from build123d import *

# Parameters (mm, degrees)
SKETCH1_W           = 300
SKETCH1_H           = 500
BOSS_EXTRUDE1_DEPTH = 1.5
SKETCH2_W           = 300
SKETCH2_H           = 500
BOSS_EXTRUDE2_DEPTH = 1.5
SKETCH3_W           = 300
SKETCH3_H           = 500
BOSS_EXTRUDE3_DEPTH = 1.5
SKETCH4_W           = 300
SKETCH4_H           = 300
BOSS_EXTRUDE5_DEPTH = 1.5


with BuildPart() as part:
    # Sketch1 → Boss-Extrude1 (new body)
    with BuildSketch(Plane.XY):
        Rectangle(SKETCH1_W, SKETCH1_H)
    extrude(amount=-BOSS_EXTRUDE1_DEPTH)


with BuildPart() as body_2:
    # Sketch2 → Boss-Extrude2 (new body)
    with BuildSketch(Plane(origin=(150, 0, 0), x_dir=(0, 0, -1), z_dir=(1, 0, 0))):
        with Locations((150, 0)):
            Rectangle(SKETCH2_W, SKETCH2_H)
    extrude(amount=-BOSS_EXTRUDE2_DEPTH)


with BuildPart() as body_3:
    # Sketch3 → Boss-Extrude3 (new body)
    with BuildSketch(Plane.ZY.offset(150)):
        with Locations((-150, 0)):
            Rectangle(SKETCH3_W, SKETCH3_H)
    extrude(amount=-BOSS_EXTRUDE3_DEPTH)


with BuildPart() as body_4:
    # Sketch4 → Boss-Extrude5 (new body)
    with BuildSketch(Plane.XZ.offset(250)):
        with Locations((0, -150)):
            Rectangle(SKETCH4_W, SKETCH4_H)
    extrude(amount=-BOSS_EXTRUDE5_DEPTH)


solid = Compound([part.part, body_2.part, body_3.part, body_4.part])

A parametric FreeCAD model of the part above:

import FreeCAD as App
import Part
import Sketcher

V = App.Vector
Q = App.Units.Quantity


def add_polygon(sketch, points):
    """Adds a closed chain of lines whose ends are joined by coincident constraints."""
    first, n = sketch.GeometryCount, len(points)
    for a, b in zip(points, points[1:] + points[:1]):
        sketch.addGeometry(Part.LineSegment(App.Vector(*a, 0), App.Vector(*b, 0)), False)
    for i in range(n):
        sketch.addConstraint(Sketcher.Constraint("Coincident", first + i, 2, first + (i + 1) % n, 1))

doc = App.newDocument("Part")
body = doc.addObject("PartDesign::Body", "Body")

# Sketch on XY plane
sketch1 = body.newObject("Sketcher::SketchObject", "Sketch")
sketch1.AttachmentSupport = (doc.getObject("XY_Plane"), [""])
sketch1.MapMode = "FlatFace"
add_polygon(sketch1, [(-150, 250), (-150, -250), (150, -250), (150, 250)])  # lines 0-3
sketch1.addConstraint(Sketcher.Constraint("Vertical", 0))
sketch1.addConstraint(Sketcher.Constraint("Horizontal", 1))
sketch1.addConstraint(Sketcher.Constraint("Vertical", 2))
sketch1.addConstraint(Sketcher.Constraint("Horizontal", 3))
sketch1.addConstraint(Sketcher.Constraint("Symmetric", 0, 2, 2, 2, -1, 1))
sketch1.addConstraint(Sketcher.Constraint("DistanceX", 1, 1, 1, 2, Q("300 mm")))
sketch1.addConstraint(Sketcher.Constraint("DistanceY", 0, 2, 0, 1, Q("500 mm")))
pad1 = body.newObject("PartDesign::Pad", "Pad")
pad1.Profile = sketch1
pad1.Length = 1.5
pad1.Reversed = True
body2 = doc.addObject("PartDesign::Body", "Body001")

# Sketch on YZ plane
sketch2 = body2.newObject("Sketcher::SketchObject", "Sketch001")
sketch2.AttachmentSupport = (doc.getObject("YZ_Plane001"), [""])
sketch2.MapMode = "FlatFace"
sketch2.AttachmentOffset = App.Placement(V(0, 0, 150), App.Rotation())
add_polygon(sketch2, [(250, 0), (-250, 0), (-250, -300), (250, -300)])  # lines 0-3
sketch2.addConstraint(Sketcher.Constraint("Horizontal", 0))
sketch2.addConstraint(Sketcher.Constraint("Vertical", 1))
sketch2.addConstraint(Sketcher.Constraint("Horizontal", 2))
sketch2.addConstraint(Sketcher.Constraint("Vertical", 3))
sketch2.addConstraint(Sketcher.Constraint("Symmetric", 0, 2, 3, 2, -1, 1))
sketch2.addConstraint(Sketcher.Constraint("DistanceX", 0, 2, 0, 1, Q("500 mm")))
sketch2.addConstraint(Sketcher.Constraint("DistanceY", 1, 2, 1, 1, Q("300 mm")))
pad2 = body2.newObject("PartDesign::Pad", "Pad001")
pad2.Profile = sketch2
pad2.Length = 1.5
pad2.Reversed = True
body3 = doc.addObject("PartDesign::Body", "Body002")

# Sketch on YZ plane
sketch3 = body3.newObject("Sketcher::SketchObject", "Sketch002")
sketch3.AttachmentSupport = (doc.getObject("YZ_Plane002"), [""])
sketch3.MapMode = "FlatFace"
sketch3.AttachmentOffset = App.Placement(V(0, 0, -150), App.Rotation())
add_polygon(sketch3, [(250, -300), (-250, -300), (-250, 0), (250, 0)])  # lines 0-3
sketch3.addConstraint(Sketcher.Constraint("Horizontal", 0))
sketch3.addConstraint(Sketcher.Constraint("Vertical", 1))
sketch3.addConstraint(Sketcher.Constraint("Horizontal", 2))
sketch3.addConstraint(Sketcher.Constraint("Vertical", 3))
sketch3.addConstraint(Sketcher.Constraint("Symmetric", 1, 2, 2, 2, -1, 1))
sketch3.addConstraint(Sketcher.Constraint("DistanceX", 0, 2, 0, 1, Q("500 mm")))
sketch3.addConstraint(Sketcher.Constraint("DistanceY", 1, 1, 1, 2, Q("300 mm")))
pad3 = body3.newObject("PartDesign::Pad", "Pad002")
pad3.Profile = sketch3
pad3.Length = 1.5
body4 = doc.addObject("PartDesign::Body", "Body003")

# Sketch on XZ plane
sketch4 = body4.newObject("Sketcher::SketchObject", "Sketch003")
sketch4.AttachmentSupport = (doc.getObject("XZ_Plane003"), [""])
sketch4.MapMode = "FlatFace"
sketch4.AttachmentOffset = App.Placement(V(0, 0, 250), App.Rotation())
add_polygon(sketch4, [(-150, 0), (-150, -300), (150, -300), (150, 0)])  # lines 0-3
sketch4.addConstraint(Sketcher.Constraint("Vertical", 0))
sketch4.addConstraint(Sketcher.Constraint("Horizontal", 1))
sketch4.addConstraint(Sketcher.Constraint("Vertical", 2))
sketch4.addConstraint(Sketcher.Constraint("Horizontal", 3))
sketch4.addConstraint(Sketcher.Constraint("Symmetric", 2, 2, 3, 2, -1, 1))
sketch4.addConstraint(Sketcher.Constraint("Equal", 3, 0))
sketch4.addConstraint(Sketcher.Constraint("DistanceX", 1, 1, 1, 2, Q("300 mm")))
pad4 = body4.newObject("PartDesign::Pad", "Pad003")
pad4.Profile = sketch4
pad4.Length = 1.5
pad4.Reversed = True

doc.recompute()
